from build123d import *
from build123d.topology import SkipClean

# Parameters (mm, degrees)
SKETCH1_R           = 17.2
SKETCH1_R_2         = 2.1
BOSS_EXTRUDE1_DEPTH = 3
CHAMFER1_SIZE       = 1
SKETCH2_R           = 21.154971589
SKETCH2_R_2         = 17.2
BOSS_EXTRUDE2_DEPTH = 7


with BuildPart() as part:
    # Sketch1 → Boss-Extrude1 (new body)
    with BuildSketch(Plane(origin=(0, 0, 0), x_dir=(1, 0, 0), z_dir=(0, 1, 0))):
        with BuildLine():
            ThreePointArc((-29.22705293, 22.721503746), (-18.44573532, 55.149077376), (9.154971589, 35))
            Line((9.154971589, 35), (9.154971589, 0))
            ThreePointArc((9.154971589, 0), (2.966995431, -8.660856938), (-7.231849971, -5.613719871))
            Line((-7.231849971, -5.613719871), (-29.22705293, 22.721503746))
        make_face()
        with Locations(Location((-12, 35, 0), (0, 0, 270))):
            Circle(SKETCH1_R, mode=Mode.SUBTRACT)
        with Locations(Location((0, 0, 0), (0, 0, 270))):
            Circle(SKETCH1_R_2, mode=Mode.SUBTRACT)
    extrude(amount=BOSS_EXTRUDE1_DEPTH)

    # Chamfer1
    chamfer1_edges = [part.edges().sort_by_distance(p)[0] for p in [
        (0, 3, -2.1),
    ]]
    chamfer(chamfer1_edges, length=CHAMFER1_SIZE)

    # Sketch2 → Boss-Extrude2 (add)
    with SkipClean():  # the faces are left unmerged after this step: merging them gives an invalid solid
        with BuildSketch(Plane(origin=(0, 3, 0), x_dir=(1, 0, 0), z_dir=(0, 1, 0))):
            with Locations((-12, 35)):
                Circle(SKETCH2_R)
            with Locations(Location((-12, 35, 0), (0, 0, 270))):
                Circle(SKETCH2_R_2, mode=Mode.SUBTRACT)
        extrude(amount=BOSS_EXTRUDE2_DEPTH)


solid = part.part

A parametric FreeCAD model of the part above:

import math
import FreeCAD as App
import Part
import Sketcher
from FreeCAD import Vector


def edges_at(feature, points):
    """Names of the edges that pass closest to the given points."""
    edges = feature.Shape.Edges
    near = lambda p: min(range(len(edges)), key=lambda i: edges[i].distToShape(Part.Vertex(*p))[0])
    return sorted({f"Edge{near(p) + 1}" for p in points})

doc = App.newDocument("Part")
params = doc.addObject("Spreadsheet::Sheet", "Params")
for row, (alias, value) in enumerate([
    ("sketch1_diameter", "4.2 mm"),
    ("sketch1_diameter2", "34.4 mm"),
    ("sketch1_height", "35 mm"),
    ("pad1_length", "3 mm"),
    ("chamfer_size", "1 mm"),
    ("sketch2_diameter", "34.4 mm"),
    ("pad2_length", "7 mm"),
], start=1):
    params.set(f"A{row}", alias)
    params.set(f"B{row}", "=" + value)
    params.setAlias(f"B{row}", alias)

body = doc.addObject("PartDesign::Body", "Body")

# Sketch on XZ plane
sketch1 = body.newObject("Sketcher::SketchObject", "Sketch")
sketch1.AttachmentSupport = (doc.getObject("XZ_Plane"), [""])
sketch1.MapMode = "FlatFace"
sketch1.addGeometry(Part.ArcOfCircle(Part.Circle(Vector(-12, -35, 0), Vector(0, 0, 1), 21.154972), math.radians(144.520817), math.radians(360)), False)
sketch1.addGeometry(Part.LineSegment(Vector(-29.227053, -22.721504, 0), Vector(-7.23185, 5.61372, 0)), False)
sketch1.addGeometry(Part.ArcOfCircle(Part.Circle(Vector(0, 0, 0), Vector(0, 0, 1), 9.154972), math.radians(0), math.radians(142.179616)), False)
sketch1.addGeometry(Part.LineSegment(Vector(9.154972, 0, 0), Vector(9.154972, -35, 0)), False)
sketch1.addGeometry(Part.Circle(Vector(0, 0, 0), Vector(0, 0, 1), 2.1), False)
sketch1.addGeometry(Part.Circle(Vector(-12, -35, 0), Vector(0, 0, 1), 17.2), False)
sketch1.addConstraint(Sketcher.Constraint("Coincident", 0, 1, 1, 1))
sketch1.addConstraint(Sketcher.Constraint("Coincident", 1, 2, 2, 2))
sketch1.addConstraint(Sketcher.Constraint("Coincident", 2, 1, 3, 1))
sketch1.addConstraint(Sketcher.Constraint("Coincident", 3, 2, 0, 2))
sketch1.addConstraint(Sketcher.Constraint("Vertical", 3))
sketch1.addConstraint(Sketcher.Constraint("Coincident", 2, 3, -1, 1))
sketch1.addConstraint(Sketcher.Constraint("Coincident", 4, 3, -1, 1))
sketch1.addConstraint(Sketcher.Constraint("Coincident", 5, 3, 0, 3))
sketch1.addConstraint(Sketcher.Constraint("PointOnObject", 2, 1, -1))
sketch1.addConstraint(Sketcher.Constraint("Diameter", 4, 4.2))
sketch1.addConstraint(Sketcher.Constraint("Diameter", 5, 34.4))
sketch1.addConstraint(Sketcher.Constraint("DistanceY", 3, 2, 3, 1, 35.0))
sketch1.addConstraint(Sketcher.Constraint("DistanceX", 0, 3, -1, 1, 12.0))
sketch1.addConstraint(Sketcher.Constraint("DistanceY", 0, 3, -1, 1, 35.0))
sketch1.addConstraint(Sketcher.Constraint("Radius", 0, 21.154972))
sketch1.addConstraint(Sketcher.Constraint("DistanceX", 1, 2, -1, 1, 7.23185))
sketch1.addConstraint(Sketcher.Constraint("Distance", 1, 35.870236))
sketch1.setExpression("Constraints[9]", "Params.sketch1_diameter")
sketch1.setExpression("Constraints[10]", "Params.sketch1_diameter2")
sketch1.setExpression("Constraints[11]", "Params.sketch1_height")
pad1 = body.newObject("PartDesign::Pad", "Pad")
pad1.Profile = sketch1
pad1.setExpression("Length", "Params.pad1_length")
pad1.Reversed = True
doc.recompute()

chamfer = body.newObject("PartDesign::Chamfer", "Chamfer")
chamfer.Base = (pad1, edges_at(pad1, [(0, 3, -2.1)]))
chamfer.setExpression("Size", "Params.chamfer_size")

# Sketch on XZ plane
sketch2 = body.newObject("Sketcher::SketchObject", "Sketch001")
sketch2.AttachmentSupport = (doc.getObject("XZ_Plane"), [""])
sketch2.MapMode = "FlatFace"
sketch2.AttachmentOffset = App.Placement(Vector(0, 0, -3), App.Rotation())
sketch2.addGeometry(Part.Circle(Vector(-12, -35, 0), Vector(0, 0, 1), 21.154972), False)
sketch2.addGeometry(Part.Circle(Vector(-12, -35, 0), Vector(0, 0, 1), 17.2), False)
sketch2.addConstraint(Sketcher.Constraint("Coincident", 1, 3, 0, 3))
sketch2.addConstraint(Sketcher.Constraint("Diameter", 1, 34.4))
sketch2.addConstraint(Sketcher.Constraint("DistanceX", 0, 3, -1, 1, 12.0))
sketch2.addConstraint(Sketcher.Constraint("DistanceY", 0, 3, -1, 1, 35.0))
sketch2.addConstraint(Sketcher.Constraint("Diameter", 0, 42.309943))
sketch2.setExpression("Constraints[1]", "Params.sketch2_diameter")
pad2 = body.newObject("PartDesign::Pad", "Pad001")
pad2.Profile = sketch2
pad2.setExpression("Length", "Params.pad2_length")
pad2.Reversed = True

doc.recompute()
